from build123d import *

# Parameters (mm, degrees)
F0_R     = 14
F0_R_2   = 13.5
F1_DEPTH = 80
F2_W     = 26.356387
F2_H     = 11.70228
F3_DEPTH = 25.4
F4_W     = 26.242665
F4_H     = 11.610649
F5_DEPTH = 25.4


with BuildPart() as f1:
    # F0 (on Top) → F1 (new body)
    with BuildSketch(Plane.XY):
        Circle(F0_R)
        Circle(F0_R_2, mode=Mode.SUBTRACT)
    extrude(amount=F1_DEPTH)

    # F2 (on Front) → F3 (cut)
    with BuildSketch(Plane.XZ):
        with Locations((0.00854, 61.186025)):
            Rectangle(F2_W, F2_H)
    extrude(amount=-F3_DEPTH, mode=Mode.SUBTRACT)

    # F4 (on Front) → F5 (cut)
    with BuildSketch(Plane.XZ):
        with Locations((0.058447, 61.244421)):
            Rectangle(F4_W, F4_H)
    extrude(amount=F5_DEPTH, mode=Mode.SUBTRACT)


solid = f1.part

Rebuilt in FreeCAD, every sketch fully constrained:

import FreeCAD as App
import Part
import Sketcher
from FreeCAD import Vector


def add_polygon(sketch, points):
    """Adds a closed chain of lines whose ends are joined by coincident constraints."""
    first, n = sketch.GeometryCount, len(points)
    for a, b in zip(points, points[1:] + points[:1]):
        sketch.addGeometry(Part.LineSegment(App.Vector(*a, 0), App.Vector(*b, 0)), False)
    for i in range(n):
        sketch.addConstraint(Sketcher.Constraint("Coincident", first + i, 2, first + (i + 1) % n, 1))

doc = App.newDocument("Part")
params = doc.addObject("Spreadsheet::Sheet", "Params")
for row, (alias, value) in enumerate([
    ("sketch1_diameter", "28 mm"),
    ("sketch1_diameter2", "27 mm"),
    ("pad1_length", "80 mm"),
    ("pocket1_length", "25.4 mm"),
    ("pocket2_length", "25.4 mm"),
], start=1):
    params.set(f"A{row}", alias)
    params.set(f"B{row}", "=" + value)
    params.setAlias(f"B{row}", alias)

body = doc.addObject("PartDesign::Body", "Body")

# Sketch on XY plane
sketch1 = body.newObject("Sketcher::SketchObject", "Sketch")
sketch1.AttachmentSupport = (doc.getObject("XY_Plane"), [""])
sketch1.MapMode = "FlatFace"
sketch1.addGeometry(Part.Circle(Vector(0, 0, 0), Vector(0, 0, 1), 14), False)
sketch1.addGeometry(Part.Circle(Vector(0, 0, 0), Vector(0, 0, 1), 14), False)
sketch1.addConstraint(Sketcher.Constraint("Coincident", 0, 3, -1, 1))
sketch1.addConstraint(Sketcher.Constraint("Coincident", 1, 3, -1, 1))
sketch1.addConstraint(Sketcher.Constraint("Diameter", 0, 28.0))
sketch1.addConstraint(Sketcher.Constraint("Diameter", 1, 27.0))
sketch1.setExpression("Constraints[2]", "Params.sketch1_diameter")
sketch1.setExpression("Constraints[3]", "Params.sketch1_diameter2")
pad1 = body.newObject("PartDesign::Pad", "Pad")
pad1.Profile = sketch1
pad1.setExpression("Length", "Params.pad1_length")

# Sketch on XZ plane
sketch2 = body.newObject("Sketcher::SketchObject", "Sketch001")
sketch2.AttachmentSupport = (doc.getObject("XZ_Plane"), [""])
sketch2.MapMode = "FlatFace"
add_polygon(sketch2, [(-13, 67), (-13, 55), (13, 55), (13, 67)])  # lines 0-3
sketch2.addConstraint(Sketcher.Constraint("Vertical", 0))
sketch2.addConstraint(Sketcher.Constraint("Horizontal", 1))
sketch2.addConstraint(Sketcher.Constraint("Vertical", 2))
sketch2.addConstraint(Sketcher.Constraint("Horizontal", 3))
sketch2.addConstraint(Sketcher.Constraint("DistanceY", 0, 2, 0, 1, 11.70228))
sketch2.addConstraint(Sketcher.Constraint("DistanceX", 1, 1, 1, 2, 26.356387))
sketch2.addConstraint(Sketcher.Constraint("DistanceX", 0, 2, -1, 1, 13.169654))
sketch2.addConstraint(Sketcher.Constraint("DistanceY", -1, 1, 0, 2, 55.334885))
pocket1 = body.newObject("PartDesign::Pocket", "Pocket")
pocket1.Profile = sketch2
pocket1.setExpression("Length", "Params.pocket1_length")

# Sketch on XZ plane
sketch3 = body.newObject("Sketcher::SketchObject", "Sketch002")
sketch3.AttachmentSupport = (doc.getObject("XZ_Plane"), [""])
sketch3.MapMode = "FlatFace"
add_polygon(sketch3, [(-13, 67), (-13, 55), (13, 55), (13, 67)])  # lines 0-3
sketch3.addConstraint(Sketcher.Constraint("Vertical", 0))
sketch3.addConstraint(Sketcher.Constraint("Horizontal", 1))
sketch3.addConstraint(Sketcher.Constraint("Vertical", 2))
sketch3.addConstraint(Sketcher.Constraint("Horizontal", 3))
sketch3.addConstraint(Sketcher.Constraint("DistanceY", 0, 2, 0, 1, 11.610649))
sketch3.addConstraint(Sketcher.Constraint("DistanceX", 1, 1, 1, 2, 26.242665))
sketch3.addConstraint(Sketcher.Constraint("DistanceX", -1, 1, 1, 2, 13.17978))
sketch3.addConstraint(Sketcher.Constraint("DistanceY", -1, 1, 0, 2, 55.439096))
pocket2 = body.newObject("PartDesign::Pocket", "Pocket001")
pocket2.Profile = sketch3
pocket2.setExpression("Length", "Params.pocket2_length")
pocket2.Reversed = True

doc.recompute()
